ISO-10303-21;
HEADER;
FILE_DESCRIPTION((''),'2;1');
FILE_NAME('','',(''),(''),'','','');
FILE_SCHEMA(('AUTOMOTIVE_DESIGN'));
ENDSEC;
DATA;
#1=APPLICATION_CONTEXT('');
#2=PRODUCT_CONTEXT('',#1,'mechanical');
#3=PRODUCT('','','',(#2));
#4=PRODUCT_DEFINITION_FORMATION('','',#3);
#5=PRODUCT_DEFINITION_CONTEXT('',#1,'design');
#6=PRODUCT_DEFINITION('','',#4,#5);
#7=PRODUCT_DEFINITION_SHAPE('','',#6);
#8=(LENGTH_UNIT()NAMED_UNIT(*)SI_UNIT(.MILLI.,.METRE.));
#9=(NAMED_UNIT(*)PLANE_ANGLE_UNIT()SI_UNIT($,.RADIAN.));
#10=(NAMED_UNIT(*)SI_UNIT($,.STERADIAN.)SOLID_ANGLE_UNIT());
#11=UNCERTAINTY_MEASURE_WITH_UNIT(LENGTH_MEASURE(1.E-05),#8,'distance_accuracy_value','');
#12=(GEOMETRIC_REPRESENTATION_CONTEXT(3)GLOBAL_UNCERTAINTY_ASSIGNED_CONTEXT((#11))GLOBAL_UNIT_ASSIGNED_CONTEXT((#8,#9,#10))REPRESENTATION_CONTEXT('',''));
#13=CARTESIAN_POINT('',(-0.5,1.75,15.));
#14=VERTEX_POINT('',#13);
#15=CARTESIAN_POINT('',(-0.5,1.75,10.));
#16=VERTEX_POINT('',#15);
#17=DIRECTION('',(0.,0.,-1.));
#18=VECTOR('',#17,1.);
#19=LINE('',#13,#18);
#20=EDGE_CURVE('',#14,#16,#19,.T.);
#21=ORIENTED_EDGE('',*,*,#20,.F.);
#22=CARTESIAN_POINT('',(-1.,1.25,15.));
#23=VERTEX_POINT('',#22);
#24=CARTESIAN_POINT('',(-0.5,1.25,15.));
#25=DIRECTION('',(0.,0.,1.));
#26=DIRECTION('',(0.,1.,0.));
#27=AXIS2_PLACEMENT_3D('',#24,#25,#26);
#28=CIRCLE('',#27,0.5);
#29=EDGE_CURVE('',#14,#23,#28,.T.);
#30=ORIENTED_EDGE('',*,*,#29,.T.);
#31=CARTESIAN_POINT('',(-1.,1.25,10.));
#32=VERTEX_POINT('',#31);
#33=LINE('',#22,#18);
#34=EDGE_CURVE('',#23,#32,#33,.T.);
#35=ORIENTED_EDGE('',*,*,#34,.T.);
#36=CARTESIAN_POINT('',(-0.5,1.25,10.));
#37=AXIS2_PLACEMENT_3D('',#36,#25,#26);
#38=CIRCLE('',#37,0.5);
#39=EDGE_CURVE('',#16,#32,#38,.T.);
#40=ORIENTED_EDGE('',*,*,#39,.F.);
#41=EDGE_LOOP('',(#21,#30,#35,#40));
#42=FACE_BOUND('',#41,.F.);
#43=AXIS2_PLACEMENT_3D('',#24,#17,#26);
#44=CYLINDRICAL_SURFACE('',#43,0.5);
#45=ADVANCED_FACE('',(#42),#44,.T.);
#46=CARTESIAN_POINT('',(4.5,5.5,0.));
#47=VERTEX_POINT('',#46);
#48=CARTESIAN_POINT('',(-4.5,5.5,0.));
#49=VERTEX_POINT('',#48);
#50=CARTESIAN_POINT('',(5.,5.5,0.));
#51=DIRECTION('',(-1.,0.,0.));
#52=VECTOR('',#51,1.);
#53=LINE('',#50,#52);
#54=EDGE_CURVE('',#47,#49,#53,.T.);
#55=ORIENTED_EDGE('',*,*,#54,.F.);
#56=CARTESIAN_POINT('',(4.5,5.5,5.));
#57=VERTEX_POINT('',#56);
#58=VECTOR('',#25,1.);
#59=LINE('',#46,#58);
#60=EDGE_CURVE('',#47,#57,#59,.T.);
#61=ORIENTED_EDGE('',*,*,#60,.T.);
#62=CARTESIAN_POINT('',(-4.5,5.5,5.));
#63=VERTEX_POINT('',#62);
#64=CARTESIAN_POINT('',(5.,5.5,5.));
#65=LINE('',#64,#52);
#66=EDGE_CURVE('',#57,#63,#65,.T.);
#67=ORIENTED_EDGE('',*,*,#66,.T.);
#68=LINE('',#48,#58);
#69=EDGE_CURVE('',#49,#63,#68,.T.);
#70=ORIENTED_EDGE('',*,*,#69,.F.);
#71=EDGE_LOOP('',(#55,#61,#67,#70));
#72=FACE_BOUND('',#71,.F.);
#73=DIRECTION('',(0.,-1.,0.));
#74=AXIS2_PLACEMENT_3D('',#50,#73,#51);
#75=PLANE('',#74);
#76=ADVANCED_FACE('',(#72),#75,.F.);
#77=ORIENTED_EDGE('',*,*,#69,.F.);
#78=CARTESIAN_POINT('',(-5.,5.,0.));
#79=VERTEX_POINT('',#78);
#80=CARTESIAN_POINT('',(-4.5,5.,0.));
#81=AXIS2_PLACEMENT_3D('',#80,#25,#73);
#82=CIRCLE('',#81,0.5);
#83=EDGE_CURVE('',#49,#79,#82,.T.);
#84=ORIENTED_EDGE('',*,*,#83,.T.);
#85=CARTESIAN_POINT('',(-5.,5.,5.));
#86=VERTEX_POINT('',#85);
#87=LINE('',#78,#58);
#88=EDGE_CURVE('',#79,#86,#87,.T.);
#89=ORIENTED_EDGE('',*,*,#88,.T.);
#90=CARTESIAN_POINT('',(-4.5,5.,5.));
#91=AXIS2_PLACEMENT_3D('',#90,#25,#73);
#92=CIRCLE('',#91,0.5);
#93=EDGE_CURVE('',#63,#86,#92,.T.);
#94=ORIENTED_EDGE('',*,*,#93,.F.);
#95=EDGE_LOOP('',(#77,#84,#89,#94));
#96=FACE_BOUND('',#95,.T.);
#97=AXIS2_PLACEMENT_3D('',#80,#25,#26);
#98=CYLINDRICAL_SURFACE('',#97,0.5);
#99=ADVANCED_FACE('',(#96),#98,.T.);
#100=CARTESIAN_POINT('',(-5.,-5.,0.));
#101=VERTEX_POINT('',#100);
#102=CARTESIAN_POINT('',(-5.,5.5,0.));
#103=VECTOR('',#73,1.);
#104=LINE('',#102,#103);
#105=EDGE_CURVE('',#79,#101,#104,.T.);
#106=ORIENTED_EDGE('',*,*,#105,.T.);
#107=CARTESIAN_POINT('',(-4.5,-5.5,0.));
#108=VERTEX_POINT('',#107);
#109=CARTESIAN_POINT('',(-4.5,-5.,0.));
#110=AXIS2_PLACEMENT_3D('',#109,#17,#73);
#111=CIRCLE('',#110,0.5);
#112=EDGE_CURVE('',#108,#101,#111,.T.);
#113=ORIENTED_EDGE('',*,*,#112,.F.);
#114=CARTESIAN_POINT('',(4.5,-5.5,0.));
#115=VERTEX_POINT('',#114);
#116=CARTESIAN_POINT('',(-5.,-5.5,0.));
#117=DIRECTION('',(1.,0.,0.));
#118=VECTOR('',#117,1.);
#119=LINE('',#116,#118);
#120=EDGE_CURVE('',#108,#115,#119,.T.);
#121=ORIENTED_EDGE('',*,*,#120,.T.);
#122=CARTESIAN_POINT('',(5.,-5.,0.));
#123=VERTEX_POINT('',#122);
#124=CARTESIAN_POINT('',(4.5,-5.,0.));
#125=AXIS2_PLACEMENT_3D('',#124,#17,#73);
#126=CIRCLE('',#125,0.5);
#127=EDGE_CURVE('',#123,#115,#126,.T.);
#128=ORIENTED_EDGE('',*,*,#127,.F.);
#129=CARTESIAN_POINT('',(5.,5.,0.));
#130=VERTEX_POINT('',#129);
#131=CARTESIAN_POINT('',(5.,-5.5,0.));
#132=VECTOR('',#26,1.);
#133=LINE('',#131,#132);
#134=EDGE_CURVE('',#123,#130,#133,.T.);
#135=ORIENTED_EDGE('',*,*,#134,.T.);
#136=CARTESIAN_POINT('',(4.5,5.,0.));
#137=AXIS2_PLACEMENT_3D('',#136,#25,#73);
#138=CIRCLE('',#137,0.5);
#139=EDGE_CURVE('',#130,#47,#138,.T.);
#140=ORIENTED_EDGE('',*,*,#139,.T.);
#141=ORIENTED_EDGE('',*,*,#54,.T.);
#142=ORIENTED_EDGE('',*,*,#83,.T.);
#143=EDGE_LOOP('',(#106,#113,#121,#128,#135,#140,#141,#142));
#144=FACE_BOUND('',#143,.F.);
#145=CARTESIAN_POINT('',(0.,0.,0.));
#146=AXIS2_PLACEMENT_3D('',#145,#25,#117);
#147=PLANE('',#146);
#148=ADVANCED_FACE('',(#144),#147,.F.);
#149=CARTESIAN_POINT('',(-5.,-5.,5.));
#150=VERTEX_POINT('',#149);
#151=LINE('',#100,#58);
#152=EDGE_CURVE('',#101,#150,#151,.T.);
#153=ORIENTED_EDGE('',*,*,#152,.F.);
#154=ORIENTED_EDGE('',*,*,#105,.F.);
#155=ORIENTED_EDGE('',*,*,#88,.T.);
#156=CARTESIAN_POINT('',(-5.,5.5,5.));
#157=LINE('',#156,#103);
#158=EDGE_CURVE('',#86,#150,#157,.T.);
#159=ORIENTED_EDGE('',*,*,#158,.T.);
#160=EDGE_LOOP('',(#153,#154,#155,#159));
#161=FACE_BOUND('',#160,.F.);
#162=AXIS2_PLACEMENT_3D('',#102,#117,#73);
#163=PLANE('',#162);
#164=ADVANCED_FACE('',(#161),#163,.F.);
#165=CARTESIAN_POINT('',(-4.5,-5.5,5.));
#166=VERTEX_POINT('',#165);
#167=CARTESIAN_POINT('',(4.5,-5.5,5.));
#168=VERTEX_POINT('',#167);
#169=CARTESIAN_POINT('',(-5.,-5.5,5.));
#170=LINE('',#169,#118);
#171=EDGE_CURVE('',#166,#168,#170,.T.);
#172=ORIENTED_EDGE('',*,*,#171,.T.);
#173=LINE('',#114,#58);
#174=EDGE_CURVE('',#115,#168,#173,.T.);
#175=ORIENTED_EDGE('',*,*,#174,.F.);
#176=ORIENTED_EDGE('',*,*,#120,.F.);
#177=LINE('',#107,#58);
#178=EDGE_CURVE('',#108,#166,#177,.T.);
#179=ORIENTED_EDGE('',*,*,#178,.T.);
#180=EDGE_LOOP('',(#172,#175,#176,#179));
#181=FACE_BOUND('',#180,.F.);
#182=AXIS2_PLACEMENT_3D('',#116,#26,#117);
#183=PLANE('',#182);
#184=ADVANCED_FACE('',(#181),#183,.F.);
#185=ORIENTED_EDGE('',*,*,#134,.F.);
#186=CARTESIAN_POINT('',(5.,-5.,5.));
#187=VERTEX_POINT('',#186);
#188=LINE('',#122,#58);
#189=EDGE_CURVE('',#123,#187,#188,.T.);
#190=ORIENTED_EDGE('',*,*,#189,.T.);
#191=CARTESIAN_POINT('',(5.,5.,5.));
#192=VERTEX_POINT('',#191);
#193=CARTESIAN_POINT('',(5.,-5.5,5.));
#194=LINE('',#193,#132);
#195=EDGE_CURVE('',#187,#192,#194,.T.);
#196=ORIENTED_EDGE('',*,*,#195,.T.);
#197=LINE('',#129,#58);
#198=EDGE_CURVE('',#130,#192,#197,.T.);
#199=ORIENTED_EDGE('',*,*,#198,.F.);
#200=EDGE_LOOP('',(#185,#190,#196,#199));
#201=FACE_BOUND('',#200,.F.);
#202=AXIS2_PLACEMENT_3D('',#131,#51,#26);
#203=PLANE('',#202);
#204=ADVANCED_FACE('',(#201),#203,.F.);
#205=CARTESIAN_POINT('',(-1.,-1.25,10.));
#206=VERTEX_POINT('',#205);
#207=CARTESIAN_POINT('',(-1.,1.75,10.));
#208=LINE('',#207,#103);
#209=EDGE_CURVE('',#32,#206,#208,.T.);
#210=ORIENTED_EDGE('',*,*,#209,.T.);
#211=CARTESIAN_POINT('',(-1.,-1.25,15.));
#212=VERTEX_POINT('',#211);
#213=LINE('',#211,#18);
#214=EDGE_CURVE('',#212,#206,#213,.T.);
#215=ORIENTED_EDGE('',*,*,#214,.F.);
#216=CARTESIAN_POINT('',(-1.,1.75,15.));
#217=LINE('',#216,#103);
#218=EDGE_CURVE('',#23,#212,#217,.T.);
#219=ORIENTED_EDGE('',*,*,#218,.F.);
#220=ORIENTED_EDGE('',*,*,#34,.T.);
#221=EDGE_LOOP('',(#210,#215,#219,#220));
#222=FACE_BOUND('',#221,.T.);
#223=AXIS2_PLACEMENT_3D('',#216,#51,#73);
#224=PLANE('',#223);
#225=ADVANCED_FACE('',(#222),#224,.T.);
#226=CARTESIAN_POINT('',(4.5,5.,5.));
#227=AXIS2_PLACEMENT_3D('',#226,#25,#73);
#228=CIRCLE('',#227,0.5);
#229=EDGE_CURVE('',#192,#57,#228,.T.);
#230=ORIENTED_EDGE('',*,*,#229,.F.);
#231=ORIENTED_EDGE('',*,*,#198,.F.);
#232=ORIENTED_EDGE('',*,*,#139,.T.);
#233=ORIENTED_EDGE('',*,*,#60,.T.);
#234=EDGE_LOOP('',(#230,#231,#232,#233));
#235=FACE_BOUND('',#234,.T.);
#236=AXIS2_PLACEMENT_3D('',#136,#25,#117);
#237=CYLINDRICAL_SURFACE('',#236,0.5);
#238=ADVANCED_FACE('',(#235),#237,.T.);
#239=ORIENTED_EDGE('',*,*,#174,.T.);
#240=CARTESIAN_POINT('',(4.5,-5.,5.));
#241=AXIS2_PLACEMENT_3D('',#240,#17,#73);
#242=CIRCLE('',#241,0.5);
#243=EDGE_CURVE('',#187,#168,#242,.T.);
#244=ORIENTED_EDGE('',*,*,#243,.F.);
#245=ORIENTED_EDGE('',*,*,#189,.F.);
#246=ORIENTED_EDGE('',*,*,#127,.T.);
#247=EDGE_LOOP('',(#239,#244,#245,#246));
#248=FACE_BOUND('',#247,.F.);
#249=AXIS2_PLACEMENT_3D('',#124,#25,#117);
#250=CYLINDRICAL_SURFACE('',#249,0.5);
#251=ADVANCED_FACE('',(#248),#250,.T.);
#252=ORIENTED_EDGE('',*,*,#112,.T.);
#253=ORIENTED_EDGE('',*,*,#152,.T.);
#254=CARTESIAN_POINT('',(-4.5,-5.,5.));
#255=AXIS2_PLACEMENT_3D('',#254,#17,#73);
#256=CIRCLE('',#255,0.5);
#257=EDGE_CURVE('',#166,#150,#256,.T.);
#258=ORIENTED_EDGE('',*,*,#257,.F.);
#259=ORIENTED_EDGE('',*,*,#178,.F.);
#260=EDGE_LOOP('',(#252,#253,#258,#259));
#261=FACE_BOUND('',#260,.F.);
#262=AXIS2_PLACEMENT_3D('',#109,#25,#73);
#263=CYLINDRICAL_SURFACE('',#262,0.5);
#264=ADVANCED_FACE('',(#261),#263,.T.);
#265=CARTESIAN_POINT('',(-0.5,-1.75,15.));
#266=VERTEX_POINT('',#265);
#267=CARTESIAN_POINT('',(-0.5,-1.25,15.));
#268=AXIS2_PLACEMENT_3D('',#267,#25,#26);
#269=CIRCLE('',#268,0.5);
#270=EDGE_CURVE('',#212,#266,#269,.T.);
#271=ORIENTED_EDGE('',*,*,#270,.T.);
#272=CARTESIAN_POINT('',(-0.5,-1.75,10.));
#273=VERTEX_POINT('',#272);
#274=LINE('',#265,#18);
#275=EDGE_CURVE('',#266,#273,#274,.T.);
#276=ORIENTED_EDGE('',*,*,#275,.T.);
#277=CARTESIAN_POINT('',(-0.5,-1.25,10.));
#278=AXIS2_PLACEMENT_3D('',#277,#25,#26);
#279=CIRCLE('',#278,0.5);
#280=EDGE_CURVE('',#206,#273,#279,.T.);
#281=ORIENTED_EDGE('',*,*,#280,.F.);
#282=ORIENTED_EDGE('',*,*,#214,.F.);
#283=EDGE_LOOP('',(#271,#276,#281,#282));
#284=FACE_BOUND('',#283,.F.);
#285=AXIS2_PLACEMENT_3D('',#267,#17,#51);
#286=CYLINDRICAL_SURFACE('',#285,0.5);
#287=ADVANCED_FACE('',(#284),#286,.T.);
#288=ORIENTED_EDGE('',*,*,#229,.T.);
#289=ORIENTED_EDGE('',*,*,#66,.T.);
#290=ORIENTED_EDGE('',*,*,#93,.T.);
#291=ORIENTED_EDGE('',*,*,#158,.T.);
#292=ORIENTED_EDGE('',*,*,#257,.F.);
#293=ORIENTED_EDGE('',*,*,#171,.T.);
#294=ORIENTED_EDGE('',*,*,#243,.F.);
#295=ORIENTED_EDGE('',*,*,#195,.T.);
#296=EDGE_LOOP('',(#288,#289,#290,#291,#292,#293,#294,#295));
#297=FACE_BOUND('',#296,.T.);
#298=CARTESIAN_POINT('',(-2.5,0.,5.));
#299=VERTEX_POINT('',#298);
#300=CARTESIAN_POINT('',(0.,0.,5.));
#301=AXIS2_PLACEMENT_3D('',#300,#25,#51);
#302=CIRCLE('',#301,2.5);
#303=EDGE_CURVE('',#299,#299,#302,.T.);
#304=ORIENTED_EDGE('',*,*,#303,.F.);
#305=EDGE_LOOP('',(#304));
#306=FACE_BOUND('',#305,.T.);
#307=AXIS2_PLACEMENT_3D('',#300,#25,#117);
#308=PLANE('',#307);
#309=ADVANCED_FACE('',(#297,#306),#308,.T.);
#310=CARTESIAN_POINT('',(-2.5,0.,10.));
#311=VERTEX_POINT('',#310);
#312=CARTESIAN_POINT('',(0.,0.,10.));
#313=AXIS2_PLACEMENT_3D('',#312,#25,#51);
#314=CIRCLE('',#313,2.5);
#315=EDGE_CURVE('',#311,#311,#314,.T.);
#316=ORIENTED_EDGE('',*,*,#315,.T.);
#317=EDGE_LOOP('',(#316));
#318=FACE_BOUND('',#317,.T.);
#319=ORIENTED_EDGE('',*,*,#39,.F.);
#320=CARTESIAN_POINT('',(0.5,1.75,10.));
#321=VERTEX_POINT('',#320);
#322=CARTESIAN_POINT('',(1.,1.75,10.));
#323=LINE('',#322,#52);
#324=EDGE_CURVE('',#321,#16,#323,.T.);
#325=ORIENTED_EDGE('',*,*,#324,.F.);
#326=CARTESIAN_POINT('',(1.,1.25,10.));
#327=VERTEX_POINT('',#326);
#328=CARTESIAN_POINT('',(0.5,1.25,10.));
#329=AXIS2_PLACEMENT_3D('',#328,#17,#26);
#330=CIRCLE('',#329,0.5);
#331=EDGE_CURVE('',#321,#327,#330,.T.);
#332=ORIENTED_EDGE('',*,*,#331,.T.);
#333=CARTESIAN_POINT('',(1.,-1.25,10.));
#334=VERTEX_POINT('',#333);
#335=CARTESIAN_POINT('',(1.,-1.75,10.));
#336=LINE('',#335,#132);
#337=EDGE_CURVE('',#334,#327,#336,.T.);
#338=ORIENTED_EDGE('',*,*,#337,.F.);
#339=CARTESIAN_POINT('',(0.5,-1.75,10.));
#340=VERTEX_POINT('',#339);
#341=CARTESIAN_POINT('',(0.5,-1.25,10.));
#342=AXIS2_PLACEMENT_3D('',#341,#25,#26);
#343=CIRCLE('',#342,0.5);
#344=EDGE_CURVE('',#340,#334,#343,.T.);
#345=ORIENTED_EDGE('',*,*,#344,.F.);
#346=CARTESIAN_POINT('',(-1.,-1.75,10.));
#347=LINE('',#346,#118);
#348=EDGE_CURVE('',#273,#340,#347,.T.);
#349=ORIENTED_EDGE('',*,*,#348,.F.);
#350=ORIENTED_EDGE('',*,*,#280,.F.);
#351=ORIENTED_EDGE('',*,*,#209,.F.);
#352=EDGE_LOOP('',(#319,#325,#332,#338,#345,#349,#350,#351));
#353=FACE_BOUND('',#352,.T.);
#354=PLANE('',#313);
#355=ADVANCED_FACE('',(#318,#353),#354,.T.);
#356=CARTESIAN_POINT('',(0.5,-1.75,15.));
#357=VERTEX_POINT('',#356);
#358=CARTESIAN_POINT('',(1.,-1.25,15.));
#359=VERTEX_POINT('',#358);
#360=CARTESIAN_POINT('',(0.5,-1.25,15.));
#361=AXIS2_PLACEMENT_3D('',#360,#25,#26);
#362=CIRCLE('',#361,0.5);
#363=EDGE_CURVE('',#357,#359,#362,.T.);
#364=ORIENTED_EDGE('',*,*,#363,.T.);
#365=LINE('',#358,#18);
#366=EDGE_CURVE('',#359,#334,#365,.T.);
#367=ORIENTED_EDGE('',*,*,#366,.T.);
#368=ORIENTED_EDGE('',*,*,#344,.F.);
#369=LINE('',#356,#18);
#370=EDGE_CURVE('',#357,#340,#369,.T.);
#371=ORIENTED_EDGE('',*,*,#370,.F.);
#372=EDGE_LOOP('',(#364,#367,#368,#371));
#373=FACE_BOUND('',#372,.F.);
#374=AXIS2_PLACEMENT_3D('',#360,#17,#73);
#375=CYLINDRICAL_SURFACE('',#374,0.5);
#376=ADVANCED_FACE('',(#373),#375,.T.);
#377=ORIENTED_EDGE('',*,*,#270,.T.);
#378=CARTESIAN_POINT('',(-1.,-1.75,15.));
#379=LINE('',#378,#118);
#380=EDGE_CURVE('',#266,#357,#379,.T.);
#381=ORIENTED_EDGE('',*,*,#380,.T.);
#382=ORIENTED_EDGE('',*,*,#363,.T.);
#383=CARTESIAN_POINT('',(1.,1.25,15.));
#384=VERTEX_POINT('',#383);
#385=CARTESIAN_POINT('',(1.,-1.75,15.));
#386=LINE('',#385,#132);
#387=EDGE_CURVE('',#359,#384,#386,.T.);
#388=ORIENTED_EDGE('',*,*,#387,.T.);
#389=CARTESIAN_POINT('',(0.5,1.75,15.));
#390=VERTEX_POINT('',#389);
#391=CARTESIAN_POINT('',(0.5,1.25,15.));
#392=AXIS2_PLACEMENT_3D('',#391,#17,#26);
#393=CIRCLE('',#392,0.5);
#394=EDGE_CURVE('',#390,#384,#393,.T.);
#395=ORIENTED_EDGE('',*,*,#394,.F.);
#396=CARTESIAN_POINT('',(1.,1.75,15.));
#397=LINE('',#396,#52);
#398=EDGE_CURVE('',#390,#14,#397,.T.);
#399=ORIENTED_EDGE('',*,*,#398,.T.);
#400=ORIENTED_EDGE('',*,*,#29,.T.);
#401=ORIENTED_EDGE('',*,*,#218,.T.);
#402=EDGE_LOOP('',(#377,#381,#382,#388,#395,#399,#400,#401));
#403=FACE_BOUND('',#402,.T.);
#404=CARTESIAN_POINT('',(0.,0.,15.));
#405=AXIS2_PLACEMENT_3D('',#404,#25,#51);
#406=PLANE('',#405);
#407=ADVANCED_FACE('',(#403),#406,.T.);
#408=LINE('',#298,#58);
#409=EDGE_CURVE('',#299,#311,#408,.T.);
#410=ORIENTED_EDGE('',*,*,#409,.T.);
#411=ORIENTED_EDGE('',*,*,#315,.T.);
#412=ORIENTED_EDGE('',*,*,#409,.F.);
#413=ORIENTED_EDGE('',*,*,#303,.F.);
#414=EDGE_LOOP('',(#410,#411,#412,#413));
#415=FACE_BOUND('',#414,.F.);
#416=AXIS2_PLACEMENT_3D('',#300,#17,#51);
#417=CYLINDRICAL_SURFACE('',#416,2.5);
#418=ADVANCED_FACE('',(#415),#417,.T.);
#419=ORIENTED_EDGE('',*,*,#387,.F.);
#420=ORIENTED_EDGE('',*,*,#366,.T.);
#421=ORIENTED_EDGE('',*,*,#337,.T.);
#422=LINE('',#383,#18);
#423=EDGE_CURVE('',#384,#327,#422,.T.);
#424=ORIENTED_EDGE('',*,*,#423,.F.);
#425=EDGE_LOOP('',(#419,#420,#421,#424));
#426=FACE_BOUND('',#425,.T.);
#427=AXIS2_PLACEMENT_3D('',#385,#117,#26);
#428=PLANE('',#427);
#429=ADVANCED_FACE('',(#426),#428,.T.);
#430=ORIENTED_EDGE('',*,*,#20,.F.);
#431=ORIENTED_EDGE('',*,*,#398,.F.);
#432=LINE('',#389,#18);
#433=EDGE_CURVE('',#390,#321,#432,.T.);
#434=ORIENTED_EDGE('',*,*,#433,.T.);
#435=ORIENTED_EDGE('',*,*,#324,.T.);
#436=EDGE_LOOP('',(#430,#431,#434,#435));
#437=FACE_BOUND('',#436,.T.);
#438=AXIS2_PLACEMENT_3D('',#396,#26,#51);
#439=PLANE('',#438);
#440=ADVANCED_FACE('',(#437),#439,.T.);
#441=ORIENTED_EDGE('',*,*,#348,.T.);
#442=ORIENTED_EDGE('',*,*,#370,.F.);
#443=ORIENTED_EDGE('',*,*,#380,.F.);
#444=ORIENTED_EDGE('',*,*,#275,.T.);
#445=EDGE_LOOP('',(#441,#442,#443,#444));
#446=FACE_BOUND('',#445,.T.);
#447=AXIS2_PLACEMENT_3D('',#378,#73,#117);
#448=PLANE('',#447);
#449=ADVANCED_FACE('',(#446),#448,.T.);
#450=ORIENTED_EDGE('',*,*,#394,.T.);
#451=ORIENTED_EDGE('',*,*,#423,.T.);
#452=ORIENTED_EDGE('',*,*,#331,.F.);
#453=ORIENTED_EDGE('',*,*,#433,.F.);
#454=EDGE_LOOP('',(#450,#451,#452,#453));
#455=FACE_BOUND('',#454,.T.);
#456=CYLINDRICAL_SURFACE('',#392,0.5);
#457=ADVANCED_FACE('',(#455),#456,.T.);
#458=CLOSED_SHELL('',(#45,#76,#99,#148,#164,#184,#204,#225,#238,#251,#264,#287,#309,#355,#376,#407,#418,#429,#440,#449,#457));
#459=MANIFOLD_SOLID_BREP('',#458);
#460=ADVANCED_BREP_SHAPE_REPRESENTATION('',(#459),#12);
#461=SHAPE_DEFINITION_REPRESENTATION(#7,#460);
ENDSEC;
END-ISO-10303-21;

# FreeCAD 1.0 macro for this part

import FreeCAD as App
import Part
import Sketcher
from FreeCAD import Vector


def edges_at(feature, points):
    """Names of the edges that pass closest to the given points."""
    edges = feature.Shape.Edges
    near = lambda p: min(range(len(edges)), key=lambda i: edges[i].distToShape(Part.Vertex(*p))[0])
    return sorted({f"Edge{near(p) + 1}" for p in points})


def add_polygon(sketch, points):
    """Adds a closed chain of lines whose ends are joined by coincident constraints."""
    first, n = sketch.GeometryCount, len(points)
    for a, b in zip(points, points[1:] + points[:1]):
        sketch.addGeometry(Part.LineSegment(App.Vector(*a, 0), App.Vector(*b, 0)), False)
    for i in range(n):
        sketch.addConstraint(Sketcher.Constraint("Coincident", first + i, 2, first + (i + 1) % n, 1))

doc = App.newDocument("Part")
body = doc.addObject("PartDesign::Body", "Body")

sketch1 = body.newObject("Sketcher::SketchObject", "Sketch")
sketch1.AttachmentSupport = (doc.getObject("XY_Plane"), [""])
sketch1.MapMode = "FlatFace"
add_polygon(sketch1, [(5, -6), (5, 6), (-5, 6), (-5, -6)])
sketch1.addConstraint(Sketcher.Constraint("Vertical", 0))
sketch1.addConstraint(Sketcher.Constraint("Horizontal", 1))
sketch1.addConstraint(Sketcher.Constraint("Vertical", 2))
sketch1.addConstraint(Sketcher.Constraint("Horizontal", 3))
sketch1.addConstraint(Sketcher.Constraint("Symmetric", 0, 2, 2, 2, -1, 1))
sketch1.addConstraint(Sketcher.Constraint("DistanceX", 1, 2, 1, 1, 10.0))
sketch1.addConstraint(Sketcher.Constraint("DistanceY", 0, 1, 0, 2, 11.0))
pad1 = body.newObject("PartDesign::Pad", "Pad")
pad1.Profile = sketch1
pad1.Length = 5

sketch2 = body.newObject("Sketcher::SketchObject", "Sketch001")
sketch2.AttachmentSupport = (doc.getObject("XY_Plane"), [""])
sketch2.MapMode = "FlatFace"
sketch2.AttachmentOffset = App.Placement(Vector(0, 0, 5), App.Rotation())
sketch2.addGeometry(Part.Circle(Vector(0, 0, 0), Vector(0, 0, 1), 2.5), False)
sketch2.addConstraint(Sketcher.Constraint("Coincident", 0, 3, -1, 1))
sketch2.addConstraint(Sketcher.Constraint("Diameter", 0, 5.0))
pad2 = body.newObject("PartDesign::Pad", "Pad001")
pad2.Profile = sketch2
pad2.Length = 10

sketch3 = body.newObject("Sketcher::SketchObject", "Sketch002")
sketch3.AttachmentSupport = (doc.getObject("XY_Plane"), [""])
sketch3.MapMode = "FlatFace"
sketch3.AttachmentOffset = App.Placement(Vector(0, 0, 15), App.Rotation())
sketch3.addGeometry(Part.Circle(Vector(0, 0, 0), Vector(0, 0, 1), 2.5), False)
add_polygon(sketch3, [(-1, 1.8), (1, 1.8), (1, -1.8), (-1, -1.8)])
sketch3.addConstraint(Sketcher.Constraint("Horizontal", 1))
sketch3.addConstraint(Sketcher.Constraint("Vertical", 2))
sketch3.addConstraint(Sketcher.Constraint("Horizontal", 3))
sketch3.addConstraint(Sketcher.Constraint("Vertical", 4))
sketch3.addConstraint(Sketcher.Constraint("Coincident", 0, 3, -1, 1))
sketch3.addConstraint(Sketcher.Constraint("Symmetric", 1, 2, 3, 2, -1, 1))
sketch3.addConstraint(Sketcher.Constraint("DistanceX", 1, 1, 1, 2, 2.0))
sketch3.addConstraint(Sketcher.Constraint("Diameter", 0, 5.0))
sketch3.addConstraint(Sketcher.Constraint("DistanceY", 2, 2, 2, 1, 3.5))
pocket1 = body.newObject("PartDesign::Pocket", "Pocket")
pocket1.Profile = sketch3
pocket1.Length = 5
doc.recompute()

fillet = body.newObject("PartDesign::Fillet", "Fillet")
fillet.Base = (pocket1, edges_at(pocket1, [
    (-1, -1.75, 12.5),
    (1, -1.75, 12.5),
    (-1, 1.75, 12.5),
    (1, 1.75, 12.5),
]))
fillet.Radius = 0.5
doc.recompute()

fillet2 = body.newObject("PartDesign::Fillet", "Fillet001")
fillet2.Base = (fillet, edges_at(fillet, [
    (-5, 5.5, 2.5),
    (5, 5.5, 2.5),
    (-5, -5.5, 2.5),
    (5, -5.5, 2.5),
]))
fillet2.Radius = 0.5

doc.recompute()
